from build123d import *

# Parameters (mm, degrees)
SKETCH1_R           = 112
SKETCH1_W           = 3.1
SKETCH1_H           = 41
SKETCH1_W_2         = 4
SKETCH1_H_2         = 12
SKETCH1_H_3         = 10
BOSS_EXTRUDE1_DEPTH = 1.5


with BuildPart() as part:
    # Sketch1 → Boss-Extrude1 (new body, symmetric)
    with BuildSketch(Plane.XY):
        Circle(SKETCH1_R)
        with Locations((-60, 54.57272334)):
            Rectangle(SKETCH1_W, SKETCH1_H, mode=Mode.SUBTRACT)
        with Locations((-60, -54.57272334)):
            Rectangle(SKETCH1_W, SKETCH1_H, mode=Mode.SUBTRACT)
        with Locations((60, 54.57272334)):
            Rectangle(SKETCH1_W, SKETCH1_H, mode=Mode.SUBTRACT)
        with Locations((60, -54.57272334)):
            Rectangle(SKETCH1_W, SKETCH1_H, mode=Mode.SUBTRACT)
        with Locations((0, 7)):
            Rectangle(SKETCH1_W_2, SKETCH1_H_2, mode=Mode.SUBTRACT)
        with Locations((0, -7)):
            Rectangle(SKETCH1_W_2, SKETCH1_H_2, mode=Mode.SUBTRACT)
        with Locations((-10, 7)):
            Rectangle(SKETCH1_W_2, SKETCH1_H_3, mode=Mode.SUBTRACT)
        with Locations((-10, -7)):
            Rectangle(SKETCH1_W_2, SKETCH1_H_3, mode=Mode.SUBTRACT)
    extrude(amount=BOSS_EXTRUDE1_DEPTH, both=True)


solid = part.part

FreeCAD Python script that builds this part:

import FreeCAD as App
import Part
import Sketcher
Q = App.Units.Quantity


def add_polygon(sketch, points):
    """Adds a closed chain of lines whose ends are joined by coincident constraints."""
    first, n = sketch.GeometryCount, len(points)
    for a, b in zip(points, points[1:] + points[:1]):
        sketch.addGeometry(Part.LineSegment(App.Vector(*a, 0), App.Vector(*b, 0)), False)
    for i in range(n):
        sketch.addConstraint(Sketcher.Constraint("Coincident", first + i, 2, first + (i + 1) % n, 1))

doc = App.newDocument("Part")
params = doc.addObject("Spreadsheet::Sheet", "Params")
for row, (alias, value) in enumerate([
    ("sketch1_diameter", "224 mm"),
    ("sketch1_width", "4 mm"),
    ("sketch1_height", "41 mm"),
    ("sketch1_height2", "10 mm"),
    ("sketch1_height3", "12 mm"),
    ("pad1_length", "3 mm"),
], start=1):
    params.set(f"A{row}", alias)
    params.set(f"B{row}", "=" + value)
    params.setAlias(f"B{row}", alias)

body = doc.addObject("PartDesign::Body", "Body")

sketch1 = body.newObject("Sketcher::SketchObject", "Sketch")
sketch1.AttachmentSupport = (doc.getObject("XY_Plane"), [""])
sketch1.MapMode = "FlatFace"
sketch1.addGeometry(Part.Circle(App.Vector(0, 0, 0), App.Vector(0, 0, 1), 112), False)
add_polygon(sketch1, [(-58.5, -75.1), (-61.5, -75.1), (-61.5, -34.1), (-58.5, -34.1)])
add_polygon(sketch1, [(-8, -12), (-12, -12), (-12, -2), (-8, -2)])
add_polygon(sketch1, [(61.5, -75.1), (58.5, -75.1), (58.5, -34.1), (61.5, -34.1)])
add_polygon(sketch1, [(2, -13), (-2, -13), (-2, -1), (2, -1)])
add_polygon(sketch1, [(-8, 2), (-12, 2), (-12, 12), (-8, 12)])
add_polygon(sketch1, [(-58.5, 34.1), (-61.5, 34.1), (-61.5, 75.1), (-58.5, 75.1)])
add_polygon(sketch1, [(2, 1), (-2, 1), (-2, 13), (2, 13)])
add_polygon(sketch1, [(61.5, 34.1), (58.5, 34.1), (58.5, 75.1), (61.5, 75.1)])
sketch1.addConstraint(Sketcher.Constraint("Horizontal", 1))
sketch1.addConstraint(Sketcher.Constraint("Vertical", 2))
sketch1.addConstraint(Sketcher.Constraint("Horizontal", 3))
sketch1.addConstraint(Sketcher.Constraint("Vertical", 4))
sketch1.addConstraint(Sketcher.Constraint("Horizontal", 5))
sketch1.addConstraint(Sketcher.Constraint("Vertical", 6))
sketch1.addConstraint(Sketcher.Constraint("Horizontal", 7))
sketch1.addConstraint(Sketcher.Constraint("Vertical", 8))
sketch1.addConstraint(Sketcher.Constraint("Horizontal", 9))
sketch1.addConstraint(Sketcher.Constraint("Vertical", 10))
sketch1.addConstraint(Sketcher.Constraint("Horizontal", 11))
sketch1.addConstraint(Sketcher.Constraint("Vertical", 12))
sketch1.addConstraint(Sketcher.Constraint("Horizontal", 13))
sketch1.addConstraint(Sketcher.Constraint("Vertical", 14))
sketch1.addConstraint(Sketcher.Constraint("Horizontal", 15))
sketch1.addConstraint(Sketcher.Constraint("Vertical", 16))
sketch1.addConstraint(Sketcher.Constraint("Horizontal", 17))
sketch1.addConstraint(Sketcher.Constraint("Vertical", 18))
sketch1.addConstraint(Sketcher.Constraint("Horizontal", 19))
sketch1.addConstraint(Sketcher.Constraint("Vertical", 20))
sketch1.addConstraint(Sketcher.Constraint("Horizontal", 21))
sketch1.addConstraint(Sketcher.Constraint("Vertical", 22))
sketch1.addConstraint(Sketcher.Constraint("Horizontal", 23))
sketch1.addConstraint(Sketcher.Constraint("Vertical", 24))
sketch1.addConstraint(Sketcher.Constraint("Horizontal", 25))
sketch1.addConstraint(Sketcher.Constraint("Vertical", 26))
sketch1.addConstraint(Sketcher.Constraint("Horizontal", 27))
sketch1.addConstraint(Sketcher.Constraint("Vertical", 28))
sketch1.addConstraint(Sketcher.Constraint("Horizontal", 29))
sketch1.addConstraint(Sketcher.Constraint("Vertical", 30))
sketch1.addConstraint(Sketcher.Constraint("Horizontal", 31))
sketch1.addConstraint(Sketcher.Constraint("Vertical", 32))
sketch1.addConstraint(Sketcher.Constraint("Coincident", 0, 3, -1, 1))
sketch1.addConstraint(Sketcher.Constraint("Symmetric", 11, 2, 21, 2, -1, 1))
sketch1.addConstraint(Sketcher.Constraint("Symmetric", 9, 2, 23, 2, -1, 1))
sketch1.addConstraint(Sketcher.Constraint("Symmetric", 15, 2, 25, 2, -1, 1))
sketch1.addConstraint(Sketcher.Constraint("Symmetric", 13, 2, 27, 2, -1, 1))
sketch1.addConstraint(Sketcher.Constraint("Symmetric", 3, 2, 29, 2, -1, 1))
sketch1.addConstraint(Sketcher.Constraint("Symmetric", 1, 2, 31, 2, -1, 1))
sketch1.addConstraint(Sketcher.Constraint("Symmetric", 4, 2, 9, 2, -2))
sketch1.addConstraint(Sketcher.Constraint("Symmetric", 2, 2, 11, 2, -2))
sketch1.addConstraint(Sketcher.Constraint("Symmetric", 6, 2, 17, 2, -1))
sketch1.addConstraint(Sketcher.Constraint("Symmetric", 8, 2, 19, 2, -1))
sketch1.addConstraint(Sketcher.Constraint("Vertical", 14, 2, 25, 2))
sketch1.addConstraint(Sketcher.Constraint("Equal", 7, 13))
sketch1.addConstraint(Sketcher.Constraint("Diameter", 0, Q("224 mm")))
sketch1.addConstraint(Sketcher.Constraint("DistanceX", 5, 2, 5, 1, Q("4 mm")))
sketch1.addConstraint(Sketcher.Constraint("DistanceY", 2, 1, 2, 2, Q("41 mm")))
sketch1.addConstraint(Sketcher.Constraint("DistanceY", 6, 1, 6, 2, Q("10 mm")))
sketch1.addConstraint(Sketcher.Constraint("DistanceY", 14, 1, 14, 2, Q("12 mm")))
sketch1.addConstraint(Sketcher.Constraint("DistanceX", 1, 2, 1, 1, Q("3.1 mm")))
sketch1.addConstraint(Sketcher.Constraint("DistanceX", 5, 2, -1, 1, Q("12 mm")))
sketch1.addConstraint(Sketcher.Constraint("DistanceY", 5, 2, -1, 1, Q("12 mm")))
sketch1.addConstraint(Sketcher.Constraint("DistanceY", 13, 2, -1, 1, Q("13 mm")))
sketch1.addConstraint(Sketcher.Constraint("DistanceX", 1, 2, -1, 1, Q("61.55 mm")))
sketch1.addConstraint(Sketcher.Constraint("DistanceY", 1, 2, -1, 1, Q("75.072723 mm")))
sketch1.setExpression("Constraints[77]", "Params.sketch1_diameter")
sketch1.setExpression("Constraints[78]", "Params.sketch1_width")
sketch1.setExpression("Constraints[79]", "Params.sketch1_height")
sketch1.setExpression("Constraints[80]", "Params.sketch1_height2")
sketch1.setExpression("Constraints[81]", "Params.sketch1_height3")
pad1 = body.newObject("PartDesign::Pad", "Pad")
pad1.Profile = sketch1
pad1.setExpression("Length", "Params.pad1_length")
pad1.Midplane = True

doc.recompute()
